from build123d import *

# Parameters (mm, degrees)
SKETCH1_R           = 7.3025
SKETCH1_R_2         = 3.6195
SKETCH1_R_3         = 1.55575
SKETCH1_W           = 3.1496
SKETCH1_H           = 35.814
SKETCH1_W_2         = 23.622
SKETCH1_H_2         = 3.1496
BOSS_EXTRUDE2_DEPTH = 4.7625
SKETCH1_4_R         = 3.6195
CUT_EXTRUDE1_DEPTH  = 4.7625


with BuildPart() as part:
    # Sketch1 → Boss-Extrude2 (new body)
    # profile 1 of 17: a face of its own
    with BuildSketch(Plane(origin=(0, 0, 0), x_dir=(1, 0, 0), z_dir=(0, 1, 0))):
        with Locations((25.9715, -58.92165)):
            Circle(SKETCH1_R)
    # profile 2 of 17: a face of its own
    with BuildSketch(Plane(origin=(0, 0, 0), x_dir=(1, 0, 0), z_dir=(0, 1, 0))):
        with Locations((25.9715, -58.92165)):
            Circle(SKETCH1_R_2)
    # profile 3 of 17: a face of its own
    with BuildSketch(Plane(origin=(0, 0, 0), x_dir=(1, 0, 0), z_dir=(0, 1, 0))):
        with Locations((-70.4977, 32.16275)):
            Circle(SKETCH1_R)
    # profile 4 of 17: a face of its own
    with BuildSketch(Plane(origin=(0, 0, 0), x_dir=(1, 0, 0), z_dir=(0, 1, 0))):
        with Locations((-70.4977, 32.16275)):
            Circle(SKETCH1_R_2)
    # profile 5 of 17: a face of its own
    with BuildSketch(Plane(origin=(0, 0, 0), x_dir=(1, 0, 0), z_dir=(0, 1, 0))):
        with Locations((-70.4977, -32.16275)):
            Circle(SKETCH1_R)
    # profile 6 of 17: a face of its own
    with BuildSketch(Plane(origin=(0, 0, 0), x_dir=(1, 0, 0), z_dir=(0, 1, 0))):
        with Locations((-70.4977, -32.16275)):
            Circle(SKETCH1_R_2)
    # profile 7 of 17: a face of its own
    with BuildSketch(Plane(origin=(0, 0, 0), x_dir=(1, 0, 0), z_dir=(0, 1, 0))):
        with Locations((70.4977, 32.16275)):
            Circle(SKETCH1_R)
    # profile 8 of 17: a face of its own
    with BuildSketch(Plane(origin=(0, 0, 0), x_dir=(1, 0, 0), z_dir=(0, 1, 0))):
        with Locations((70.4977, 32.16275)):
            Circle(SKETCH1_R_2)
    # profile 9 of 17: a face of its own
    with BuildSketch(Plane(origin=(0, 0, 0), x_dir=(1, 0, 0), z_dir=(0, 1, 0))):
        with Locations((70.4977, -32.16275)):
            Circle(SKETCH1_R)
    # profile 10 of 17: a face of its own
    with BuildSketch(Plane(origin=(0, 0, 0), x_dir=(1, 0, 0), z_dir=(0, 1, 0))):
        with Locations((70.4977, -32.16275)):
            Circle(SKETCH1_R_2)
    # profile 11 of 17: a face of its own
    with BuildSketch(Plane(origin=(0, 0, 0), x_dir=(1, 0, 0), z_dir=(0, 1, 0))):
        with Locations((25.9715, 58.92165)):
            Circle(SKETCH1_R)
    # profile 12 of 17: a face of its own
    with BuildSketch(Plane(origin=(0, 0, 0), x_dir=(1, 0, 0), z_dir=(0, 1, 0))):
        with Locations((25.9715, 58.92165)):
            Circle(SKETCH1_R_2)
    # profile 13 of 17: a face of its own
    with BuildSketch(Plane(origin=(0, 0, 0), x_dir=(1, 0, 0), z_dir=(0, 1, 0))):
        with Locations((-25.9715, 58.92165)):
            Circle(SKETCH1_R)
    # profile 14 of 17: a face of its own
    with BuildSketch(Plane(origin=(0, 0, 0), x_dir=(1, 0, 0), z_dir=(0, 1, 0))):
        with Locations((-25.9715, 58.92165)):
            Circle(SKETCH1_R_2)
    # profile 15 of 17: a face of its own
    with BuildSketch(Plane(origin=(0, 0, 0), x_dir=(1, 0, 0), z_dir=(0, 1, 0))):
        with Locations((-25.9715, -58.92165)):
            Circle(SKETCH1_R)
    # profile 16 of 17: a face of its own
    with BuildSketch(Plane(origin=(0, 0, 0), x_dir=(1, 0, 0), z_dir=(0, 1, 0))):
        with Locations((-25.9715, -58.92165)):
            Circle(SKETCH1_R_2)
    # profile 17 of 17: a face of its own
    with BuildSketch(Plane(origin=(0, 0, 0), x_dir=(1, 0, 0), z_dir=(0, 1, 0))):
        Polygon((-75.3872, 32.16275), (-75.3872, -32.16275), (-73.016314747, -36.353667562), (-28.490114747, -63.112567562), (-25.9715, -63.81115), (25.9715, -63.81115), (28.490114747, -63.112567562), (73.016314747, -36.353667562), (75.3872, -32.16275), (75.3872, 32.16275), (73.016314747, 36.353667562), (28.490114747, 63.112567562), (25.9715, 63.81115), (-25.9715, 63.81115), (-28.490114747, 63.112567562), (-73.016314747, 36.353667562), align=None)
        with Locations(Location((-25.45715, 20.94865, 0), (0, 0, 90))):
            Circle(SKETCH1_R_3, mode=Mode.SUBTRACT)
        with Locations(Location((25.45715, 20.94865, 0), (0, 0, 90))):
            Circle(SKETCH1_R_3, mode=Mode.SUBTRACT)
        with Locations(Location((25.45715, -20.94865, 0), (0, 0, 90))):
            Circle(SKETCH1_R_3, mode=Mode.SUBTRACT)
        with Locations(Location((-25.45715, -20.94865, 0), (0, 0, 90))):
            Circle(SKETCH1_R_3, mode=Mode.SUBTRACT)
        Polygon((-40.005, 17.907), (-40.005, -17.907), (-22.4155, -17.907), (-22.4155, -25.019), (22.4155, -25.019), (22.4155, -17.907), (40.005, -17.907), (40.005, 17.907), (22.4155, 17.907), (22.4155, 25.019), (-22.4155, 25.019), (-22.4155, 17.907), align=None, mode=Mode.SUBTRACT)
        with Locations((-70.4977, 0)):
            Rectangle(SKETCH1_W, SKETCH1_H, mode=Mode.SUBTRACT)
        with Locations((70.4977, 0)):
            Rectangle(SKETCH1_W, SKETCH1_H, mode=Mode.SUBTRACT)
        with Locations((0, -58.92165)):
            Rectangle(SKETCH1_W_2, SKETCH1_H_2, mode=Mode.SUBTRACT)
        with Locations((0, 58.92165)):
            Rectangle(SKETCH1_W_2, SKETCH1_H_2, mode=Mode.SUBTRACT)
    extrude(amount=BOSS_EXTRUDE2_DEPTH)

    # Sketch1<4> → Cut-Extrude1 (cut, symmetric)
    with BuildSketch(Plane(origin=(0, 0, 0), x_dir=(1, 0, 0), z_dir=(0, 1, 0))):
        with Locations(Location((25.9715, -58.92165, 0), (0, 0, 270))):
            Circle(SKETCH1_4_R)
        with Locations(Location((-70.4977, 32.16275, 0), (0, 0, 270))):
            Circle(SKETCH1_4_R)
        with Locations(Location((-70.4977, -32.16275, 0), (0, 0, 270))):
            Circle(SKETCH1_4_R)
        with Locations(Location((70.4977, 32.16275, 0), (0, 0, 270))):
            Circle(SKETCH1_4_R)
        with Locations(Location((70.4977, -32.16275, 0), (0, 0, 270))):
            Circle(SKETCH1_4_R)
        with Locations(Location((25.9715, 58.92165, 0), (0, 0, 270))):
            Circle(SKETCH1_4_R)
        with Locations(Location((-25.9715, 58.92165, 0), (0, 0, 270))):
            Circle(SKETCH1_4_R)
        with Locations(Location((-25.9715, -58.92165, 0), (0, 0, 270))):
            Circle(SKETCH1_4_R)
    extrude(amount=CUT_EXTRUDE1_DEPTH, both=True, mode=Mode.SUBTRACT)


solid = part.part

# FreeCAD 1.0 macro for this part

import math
import FreeCAD as App
import Part
import Sketcher

V = App.Vector
Q = App.Units.Quantity


def add_polygon(sketch, points):
    """Adds a closed chain of lines whose ends are joined by coincident constraints."""
    first, n = sketch.GeometryCount, len(points)
    for a, b in zip(points, points[1:] + points[:1]):
        sketch.addGeometry(Part.LineSegment(App.Vector(*a, 0), App.Vector(*b, 0)), False)
    for i in range(n):
        sketch.addConstraint(Sketcher.Constraint("Coincident", first + i, 2, first + (i + 1) % n, 1))

doc = App.newDocument("Part")
body = doc.addObject("PartDesign::Body", "Body")

# Sketch on XZ plane
sketch1 = body.newObject("Sketcher::SketchObject", "Sketch")
sketch1.AttachmentSupport = (doc.getObject("XZ_Plane"), [""])
sketch1.MapMode = "FlatFace"
sketch1.addGeometry(Part.LineSegment(V(-33.1, -60.3, 0), V(-68.4, -39.1, 0)), False)  # 0
sketch1.addGeometry(Part.ArcOfCircle(Part.Circle(V(-70.5, -32.2, 0), V(0, 0, 1), 7.3), math.radians(132), math.radians(287)), False)  # 1
sketch1.addGeometry(Part.LineSegment(V(-75.4, -26.7, 0), V(-75.4, 26.7, 0)), False)  # 2
sketch1.addGeometry(Part.ArcOfCircle(Part.Circle(V(-70.5, 32.2, 0), V(0, 0, 1), 7.3), math.radians(73), math.radians(228)), False)  # 3
sketch1.addGeometry(Part.LineSegment(V(-68.4, 39.1, 0), V(-33.1, 60.3, 0)), False)  # 4
sketch1.addGeometry(Part.ArcOfCircle(Part.Circle(V(-26, 58.9, 0), V(0, 0, 1), 7.3), math.radians(42), math.radians(169)), False)  # 5
sketch1.addGeometry(Part.LineSegment(V(-20.5, 63.8, 0), V(20.5, 63.8, 0)), False)  # 6
sketch1.addGeometry(Part.ArcOfCircle(Part.Circle(V(26, 58.9, 0), V(0, 0, 1), 7.3), math.radians(11), math.radians(138)), False)  # 7
sketch1.addGeometry(Part.LineSegment(V(33.1, 60.3, 0), V(68.4, 39.1, 0)), False)  # 8
sketch1.addGeometry(Part.ArcOfCircle(Part.Circle(V(70.5, 32.2, 0), V(0, 0, 1), 7.3), math.radians(-48), math.radians(107)), False)  # 9
sketch1.addGeometry(Part.LineSegment(V(75.4, 26.7, 0), V(75.4, -26.7, 0)), False)  # 10
sketch1.addGeometry(Part.ArcOfCircle(Part.Circle(V(70.5, -32.2, 0), V(0, 0, 1), 7.3), math.radians(-107), math.radians(48)), False)  # 11
sketch1.addGeometry(Part.LineSegment(V(68.4, -39.1, 0), V(33.1, -60.3, 0)), False)  # 12
sketch1.addGeometry(Part.ArcOfCircle(Part.Circle(V(26, -58.9, 0), V(0, 0, 1), 7.3), math.radians(-138), math.radians(-11)), False)  # 13
sketch1.addGeometry(Part.LineSegment(V(20.5, -63.8, 0), V(-20.5, -63.8, 0)), False)  # 14
sketch1.addGeometry(Part.ArcOfCircle(Part.Circle(V(-26, -58.9, 0), V(0, 0, 1), 7.3), math.radians(-169), math.radians(-42)), False)  # 15
add_polygon(sketch1, [(-11.8, -60.5), (11.8, -60.5), (11.8, -57.3), (-11.8, -57.3)])  # lines 16-19
sketch1.addGeometry(Part.Circle(V(-25.5, 20.9, 0), V(0, 0, 1), 1.6), False)  # 20
add_polygon(sketch1, [(11.8, 60.5), (-11.8, 60.5), (-11.8, 57.3), (11.8, 57.3)])  # lines 21-24
sketch1.addGeometry(Part.Circle(V(25.5, 20.9, 0), V(0, 0, 1), 1.6), False)  # 25
add_polygon(sketch1, [(-68.9, 17.9), (-72.1, 17.9), (-72.1, -17.9), (-68.9, -17.9)])  # lines 26-29
sketch1.addGeometry(Part.Circle(V(-25.5, -20.9, 0), V(0, 0, 1), 1.6), False)  # 30
add_polygon(sketch1, [(-40, 17.9), (-40, -17.9), (-22.4, -17.9), (-22.4, -25), (22.4, -25), (22.4, -17.9), (40, -17.9), (40, 17.9), (22.4, 17.9), (22.4, 25), (-22.4, 25), (-22.4, 17.9)])  # lines 31-42
sketch1.addGeometry(Part.Circle(V(25.5, -20.9, 0), V(0, 0, 1), 1.6), False)  # 43
add_polygon(sketch1, [(72.1, 17.9), (68.9, 17.9), (68.9, -17.9), (72.1, -17.9)])  # lines 44-47
sketch1.addConstraint([
    Sketcher.Constraint("Coincident", 0, 2, 1, 2),
    Sketcher.Constraint("Coincident", 1, 1, 2, 1),
    Sketcher.Constraint("Coincident", 2, 2, 3, 2),
    Sketcher.Constraint("Coincident", 3, 1, 4, 1),
    Sketcher.Constraint("Coincident", 4, 2, 5, 2),
    Sketcher.Constraint("Coincident", 5, 1, 6, 1),
    Sketcher.Constraint("Coincident", 6, 2, 7, 2),
    Sketcher.Constraint("Coincident", 7, 1, 8, 1),
    Sketcher.Constraint("Coincident", 8, 2, 9, 2),
    Sketcher.Constraint("Coincident", 9, 1, 10, 1),
    Sketcher.Constraint("Coincident", 10, 2, 11, 2),
    Sketcher.Constraint("Coincident", 11, 1, 12, 1),
    Sketcher.Constraint("Coincident", 12, 2, 13, 2),
    Sketcher.Constraint("Coincident", 13, 1, 14, 1),
    Sketcher.Constraint("Coincident", 14, 2, 15, 2),
    Sketcher.Constraint("Coincident", 15, 1, 0, 1),
    Sketcher.Constraint("Vertical", 2),
    Sketcher.Constraint("Horizontal", 6),
    Sketcher.Constraint("Vertical", 10),
    Sketcher.Constraint("Horizontal", 14),
    Sketcher.Constraint("Horizontal", 16),
    Sketcher.Constraint("Vertical", 17),
    Sketcher.Constraint("Horizontal", 18),
    Sketcher.Constraint("Vertical", 19),
    Sketcher.Constraint("Horizontal", 21),
    Sketcher.Constraint("Vertical", 22),
    Sketcher.Constraint("Horizontal", 23),
    Sketcher.Constraint("Vertical", 24),
    Sketcher.Constraint("Horizontal", 26),
    Sketcher.Constraint("Vertical", 27),
    Sketcher.Constraint("Horizontal", 28),
    Sketcher.Constraint("Vertical", 29),
    Sketcher.Constraint("Vertical", 31),
    Sketcher.Constraint("Horizontal", 32),
    Sketcher.Constraint("Vertical", 33),
    Sketcher.Constraint("Horizontal", 34),
    Sketcher.Constraint("Vertical", 35),
    Sketcher.Constraint("Horizontal", 36),
    Sketcher.Constraint("Vertical", 37),
    Sketcher.Constraint("Horizontal", 38),
    Sketcher.Constraint("Vertical", 39),
    Sketcher.Constraint("Horizontal", 40),
    Sketcher.Constraint("Vertical", 41),
    Sketcher.Constraint("Horizontal", 42),
    Sketcher.Constraint("Horizontal", 44),
    Sketcher.Constraint("Vertical", 45),
    Sketcher.Constraint("Horizontal", 46),
    Sketcher.Constraint("Vertical", 47),
    Sketcher.Constraint("Equal", 1, 3),
    Sketcher.Constraint("Equal", 3, 5),
    Sketcher.Constraint("Equal", 5, 7),
    Sketcher.Constraint("Equal", 7, 9),
    Sketcher.Constraint("Equal", 9, 11),
    Sketcher.Constraint("Equal", 11, 13),
    Sketcher.Constraint("Equal", 13, 15),
    Sketcher.Constraint("Equal", 20, 25),
    Sketcher.Constraint("Equal", 25, 30),
    Sketcher.Constraint("Equal", 30, 43),
    Sketcher.Constraint("Symmetric", 1, 3, 9, 3, -1, 1),
    Sketcher.Constraint("Symmetric", 3, 3, 11, 3, -1, 1),
    Sketcher.Constraint("Symmetric", 5, 3, 13, 3, -1, 1),
    Sketcher.Constraint("Symmetric", 7, 3, 15, 3, -1, 1),
    Sketcher.Constraint("Symmetric", 25, 3, 30, 3, -1, 1),
    Sketcher.Constraint("Symmetric", 20, 3, 43, 3, -1, 1),
    Sketcher.Constraint("Symmetric", 16, 2, 21, 2, -1, 1),
    Sketcher.Constraint("Symmetric", 18, 2, 23, 2, -1, 1),
    Sketcher.Constraint("Symmetric", 31, 2, 37, 2, -1, 1),
    Sketcher.Constraint("Symmetric", 33, 2, 39, 2, -1, 1),
    Sketcher.Constraint("Symmetric", 35, 2, 41, 2, -1, 1),
    Sketcher.Constraint("Symmetric", 28, 2, 44, 2, -1, 1),
    Sketcher.Constraint("Symmetric", 26, 2, 46, 2, -1, 1),
    Sketcher.Constraint("Symmetric", 5, 3, 7, 3, -2),
    Sketcher.Constraint("Symmetric", 3, 3, 9, 3, -2),
    Sketcher.Constraint("Symmetric", 20, 3, 25, 3, -2),
    Sketcher.Constraint("Symmetric", 32, 2, 35, 2, -2),
    Sketcher.Constraint("Parallel", 0, 8),
    Sketcher.Constraint("Parallel", 4, 12),
    Sketcher.Constraint("Horizontal", 4, 2, 7, 1),
    Sketcher.Constraint("Horizontal", 3, 1, 8, 2),
    Sketcher.Constraint("Horizontal", 2, 2, 9, 1),
    Sketcher.Constraint("Horizontal", 0, 2, 11, 1),
    Sketcher.Constraint("Horizontal", 28, 2, 31, 2),
    Sketcher.Constraint("Horizontal", 29, 2, 37, 2),
    Sketcher.Constraint("Vertical", 0, 2, 3, 1),
    Sketcher.Constraint("Vertical", 6, 2, 13, 1),
    Sketcher.Constraint("Vertical", 19, 2, 21, 2),
    Sketcher.Constraint("Equal", 46, 17),
    Sketcher.Constraint("Diameter", 20, Q("0.1225 in")),
    Sketcher.Constraint("DistanceX", 16, 1, 16, 2, Q("0.93 in")),
    Sketcher.Constraint("DistanceY", 27, 2, 27, 1, Q("1.41 in")),
    Sketcher.Constraint("DistanceY", 33, 2, 33, 1, Q("0.28 in")),
    Sketcher.Constraint("Radius", 1, Q("0.2875 in")),
    Sketcher.Constraint("DistanceX", 26, 2, 26, 1, Q("0.124 in")),
    Sketcher.Constraint("DistanceX", 34, 1, 34, 2, Q("1.765 in")),
    Sketcher.Constraint("DistanceY", 20, 3, 4, 2, Q("1.55 in")),
    Sketcher.Constraint("DistanceX", 15, 3, 32, 2, Q("0.14 in")),
    Sketcher.Constraint("DistanceX", 32, 1, 32, 2, Q("0.6925 in")),
    Sketcher.Constraint("DistanceX", 1, 1, -1, 1, Q("2.968 in")),
    Sketcher.Constraint("DistanceX", 3, 3, 5, 3, Q("1.753 in")),
    Sketcher.Constraint("DistanceY", 1, 3, 5, 3, Q("3.586 in")),
    Sketcher.Constraint("DistanceY", 20, 3, 5, 3, Q("1.495 in")),
    Sketcher.Constraint("DistanceY", 20, 3, 5, 1, Q("1.6875 in")),
    Sketcher.Constraint("DistanceY", 16, 2, 13, 3, Q("0.062 in")),
    Sketcher.Constraint("DistanceX", 26, 2, 3, 3, Q("0.062 in")),
    Sketcher.Constraint("DistanceY", 1, 3, 3, 3, Q("2.5325 in")),
    Sketcher.Constraint("DistanceX", 20, 3, 25, 3, Q("2.0045 in")),
    Sketcher.Constraint("DistanceX", 0, 2, -1, 1, 68.367301),
])
pad1 = body.newObject("PartDesign::Pad", "Pad")
pad1.Profile = sketch1
pad1.Length = Q("0.1875 in")
pad1.Reversed = True

# Sketch on XZ plane
sketch2 = body.newObject("Sketcher::SketchObject", "Sketch001")
sketch2.AttachmentSupport = (doc.getObject("XZ_Plane"), [""])
sketch2.MapMode = "FlatFace"
sketch2.addGeometry([
    Part.Circle(V(26, 58.9, 0), V(0, 0, 1), 3.6),  # 0
    Part.Circle(V(-70.5, -32.2, 0), V(0, 0, 1), 3.6),  # 1
    Part.Circle(V(-70.5, 32.2, 0), V(0, 0, 1), 3.6),  # 2
    Part.Circle(V(70.5, -32.2, 0), V(0, 0, 1), 3.6),  # 3
    Part.Circle(V(70.5, 32.2, 0), V(0, 0, 1), 3.6),  # 4
    Part.Circle(V(26, -58.9, 0), V(0, 0, 1), 3.6),  # 5
    Part.Circle(V(-26, -58.9, 0), V(0, 0, 1), 3.6),  # 6
    Part.Circle(V(-26, 58.9, 0), V(0, 0, 1), 3.6),  # 7
], False)
sketch2.addConstraint([
    Sketcher.Constraint("Equal", 0, 1),
    Sketcher.Constraint("Equal", 1, 2),
    Sketcher.Constraint("Equal", 2, 3),
    Sketcher.Constraint("Equal", 3, 4),
    Sketcher.Constraint("Equal", 4, 5),
    Sketcher.Constraint("Equal", 5, 6),
    Sketcher.Constraint("Equal", 6, 7),
    Sketcher.Constraint("Symmetric", 2, 3, 3, 3, -1, 1),
    Sketcher.Constraint("Symmetric", 1, 3, 4, 3, -1, 1),
    Sketcher.Constraint("Symmetric", 0, 3, 6, 3, -1, 1),
    Sketcher.Constraint("Symmetric", 5, 3, 7, 3, -1, 1),
    Sketcher.Constraint("Symmetric", 1, 3, 3, 3, -2),
    Sketcher.Constraint("Symmetric", 5, 3, 6, 3, -2),
    Sketcher.Constraint("Diameter", 0, Q("0.285 in")),
    Sketcher.Constraint("DistanceX", 1, 3, 0, 3, Q("3.798 in")),
    Sketcher.Constraint("DistanceY", 1, 3, 0, 3, Q("3.586 in")),
    Sketcher.Constraint("DistanceX", 0, 3, 3, 3, Q("1.753 in")),
    Sketcher.Constraint("DistanceY", 1, 3, 2, 3, Q("2.5325 in")),
])
pocket1 = body.newObject("PartDesign::Pocket", "Pocket")
pocket1.Profile = sketch2
pocket1.Length = Q("0.375 in")
pocket1.Midplane = True

doc.recompute()
